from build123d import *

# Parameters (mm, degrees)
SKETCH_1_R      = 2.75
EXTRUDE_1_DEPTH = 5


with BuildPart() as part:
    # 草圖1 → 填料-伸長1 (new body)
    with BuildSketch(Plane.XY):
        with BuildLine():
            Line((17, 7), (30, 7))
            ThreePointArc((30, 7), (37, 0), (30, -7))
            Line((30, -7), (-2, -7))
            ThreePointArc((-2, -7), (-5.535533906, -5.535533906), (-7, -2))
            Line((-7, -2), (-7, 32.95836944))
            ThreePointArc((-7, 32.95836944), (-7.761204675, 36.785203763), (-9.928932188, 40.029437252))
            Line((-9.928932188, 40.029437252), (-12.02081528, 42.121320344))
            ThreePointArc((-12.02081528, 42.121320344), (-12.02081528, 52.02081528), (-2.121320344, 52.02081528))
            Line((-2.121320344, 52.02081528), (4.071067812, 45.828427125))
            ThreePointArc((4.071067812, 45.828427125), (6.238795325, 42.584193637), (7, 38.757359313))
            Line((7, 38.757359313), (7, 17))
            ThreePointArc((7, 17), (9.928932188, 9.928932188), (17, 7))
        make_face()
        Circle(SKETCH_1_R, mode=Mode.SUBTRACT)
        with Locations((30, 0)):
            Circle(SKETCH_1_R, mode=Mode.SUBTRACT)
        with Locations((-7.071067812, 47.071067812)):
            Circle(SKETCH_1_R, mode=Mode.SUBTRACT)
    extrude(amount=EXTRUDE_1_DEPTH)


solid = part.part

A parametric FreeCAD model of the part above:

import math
import FreeCAD as App
import Part
import Sketcher
from FreeCAD import Vector
Q = App.Units.Quantity

doc = App.newDocument("Part")
body = doc.addObject("PartDesign::Body", "Body")

sketch1 = body.newObject("Sketcher::SketchObject", "Sketch")
sketch1.AttachmentSupport = (doc.getObject("XY_Plane"), [""])
sketch1.MapMode = "FlatFace"
sketch1.addGeometry([
    Part.LineSegment(Vector(30, 7, 0), Vector(17, 7, 0)),
    Part.ArcOfCircle(Part.Circle(Vector(17, 17, 0), Vector(0, 0, 1), 10), math.radians(180), math.radians(270)),
    Part.LineSegment(Vector(7, 17, 0), Vector(7, 38.8, 0)),
    Part.ArcOfCircle(Part.Circle(Vector(-3, 38.8, 0), Vector(0, 0, 1), 10), math.radians(0), math.radians(45)),
    Part.LineSegment(Vector(4.1, 45.8, 0), Vector(-2.1, 52, 0)),
    Part.ArcOfCircle(Part.Circle(Vector(-7.1, 47.1, 0), Vector(0, 0, 1), 7), math.radians(45), math.radians(225)),
    Part.LineSegment(Vector(-12, 42.1, 0), Vector(-9.9, 40, 0)),
    Part.ArcOfCircle(Part.Circle(Vector(-17, 33, 0), Vector(0, 0, 1), 10), math.radians(0), math.radians(45)),
    Part.LineSegment(Vector(-7, 33, 0), Vector(-7, -2, 0)),
    Part.ArcOfCircle(Part.Circle(Vector(-2, -2, 0), Vector(0, 0, 1), 5), math.radians(180), math.radians(270)),
    Part.LineSegment(Vector(-2, -7, 0), Vector(30, -7, 0)),
    Part.ArcOfCircle(Part.Circle(Vector(30, 0, 0), Vector(0, 0, 1), 7), math.radians(-90), math.radians(90)),
    Part.Circle(Vector(30, 0, 0), Vector(0, 0, 1), 2.8),
    Part.Circle(Vector(0, 0, 0), Vector(0, 0, 1), 2.8),
    Part.Circle(Vector(-7.1, 47.1, 0), Vector(0, 0, 1), 2.8),
], False)
sketch1.addConstraint([
    Sketcher.Constraint("Tangent", 0, 2, 1, 2),
    Sketcher.Constraint("Tangent", 1, 1, 2, 1),
    Sketcher.Constraint("Tangent", 2, 2, 3, 1),
    Sketcher.Constraint("Tangent", 3, 2, 4, 1),
    Sketcher.Constraint("Tangent", 4, 2, 5, 1),
    Sketcher.Constraint("Tangent", 5, 2, 6, 1),
    Sketcher.Constraint("Tangent", 6, 2, 7, 2),
    Sketcher.Constraint("Tangent", 7, 1, 8, 1),
    Sketcher.Constraint("Tangent", 8, 2, 9, 1),
    Sketcher.Constraint("Tangent", 9, 2, 10, 1),
    Sketcher.Constraint("Tangent", 10, 2, 11, 1),
    Sketcher.Constraint("Tangent", 11, 2, 0, 1),
    Sketcher.Constraint("Horizontal", 0),
    Sketcher.Constraint("Vertical", 2),
    Sketcher.Constraint("Vertical", 8),
    Sketcher.Constraint("Horizontal", 10),
    Sketcher.Constraint("Coincident", 13, 3, -1, 1),
    Sketcher.Constraint("Coincident", 12, 3, 11, 3),
    Sketcher.Constraint("Coincident", 14, 3, 5, 3),
    Sketcher.Constraint("Equal", 1, 3),
    Sketcher.Constraint("Equal", 3, 7),
    Sketcher.Constraint("Equal", 5, 11),
    Sketcher.Constraint("Equal", 12, 13),
    Sketcher.Constraint("Equal", 13, 14),
    Sketcher.Constraint("PointOnObject", 11, 3, -1),
    Sketcher.Constraint("Parallel", 4, 6),
    Sketcher.Constraint("Radius", 1, 10.0),
    Sketcher.Constraint("Radius", 5, 7.0),
    Sketcher.Constraint("Radius", 9, 5.0),
    Sketcher.Constraint("Diameter", 12, 5.5),
    Sketcher.Constraint("DistanceX", 0, 2, 0, 1, 13.0),
    Sketcher.Constraint("DistanceX", 10, 1, 10, 2, 32.0),
    Sketcher.Constraint("Angle", 4, Q("135 deg")),
    Sketcher.Constraint("DistanceX", -1, 1, 1, 3, 17.0),
    Sketcher.Constraint("DistanceY", 2, 1, 2, 2, 21.757359),
    Sketcher.Constraint("DistanceY", 7, 3, 5, 3, 14.112698),
])
pad1 = body.newObject("PartDesign::Pad", "Pad")
pad1.Profile = sketch1
pad1.Length = 5

doc.recompute()
